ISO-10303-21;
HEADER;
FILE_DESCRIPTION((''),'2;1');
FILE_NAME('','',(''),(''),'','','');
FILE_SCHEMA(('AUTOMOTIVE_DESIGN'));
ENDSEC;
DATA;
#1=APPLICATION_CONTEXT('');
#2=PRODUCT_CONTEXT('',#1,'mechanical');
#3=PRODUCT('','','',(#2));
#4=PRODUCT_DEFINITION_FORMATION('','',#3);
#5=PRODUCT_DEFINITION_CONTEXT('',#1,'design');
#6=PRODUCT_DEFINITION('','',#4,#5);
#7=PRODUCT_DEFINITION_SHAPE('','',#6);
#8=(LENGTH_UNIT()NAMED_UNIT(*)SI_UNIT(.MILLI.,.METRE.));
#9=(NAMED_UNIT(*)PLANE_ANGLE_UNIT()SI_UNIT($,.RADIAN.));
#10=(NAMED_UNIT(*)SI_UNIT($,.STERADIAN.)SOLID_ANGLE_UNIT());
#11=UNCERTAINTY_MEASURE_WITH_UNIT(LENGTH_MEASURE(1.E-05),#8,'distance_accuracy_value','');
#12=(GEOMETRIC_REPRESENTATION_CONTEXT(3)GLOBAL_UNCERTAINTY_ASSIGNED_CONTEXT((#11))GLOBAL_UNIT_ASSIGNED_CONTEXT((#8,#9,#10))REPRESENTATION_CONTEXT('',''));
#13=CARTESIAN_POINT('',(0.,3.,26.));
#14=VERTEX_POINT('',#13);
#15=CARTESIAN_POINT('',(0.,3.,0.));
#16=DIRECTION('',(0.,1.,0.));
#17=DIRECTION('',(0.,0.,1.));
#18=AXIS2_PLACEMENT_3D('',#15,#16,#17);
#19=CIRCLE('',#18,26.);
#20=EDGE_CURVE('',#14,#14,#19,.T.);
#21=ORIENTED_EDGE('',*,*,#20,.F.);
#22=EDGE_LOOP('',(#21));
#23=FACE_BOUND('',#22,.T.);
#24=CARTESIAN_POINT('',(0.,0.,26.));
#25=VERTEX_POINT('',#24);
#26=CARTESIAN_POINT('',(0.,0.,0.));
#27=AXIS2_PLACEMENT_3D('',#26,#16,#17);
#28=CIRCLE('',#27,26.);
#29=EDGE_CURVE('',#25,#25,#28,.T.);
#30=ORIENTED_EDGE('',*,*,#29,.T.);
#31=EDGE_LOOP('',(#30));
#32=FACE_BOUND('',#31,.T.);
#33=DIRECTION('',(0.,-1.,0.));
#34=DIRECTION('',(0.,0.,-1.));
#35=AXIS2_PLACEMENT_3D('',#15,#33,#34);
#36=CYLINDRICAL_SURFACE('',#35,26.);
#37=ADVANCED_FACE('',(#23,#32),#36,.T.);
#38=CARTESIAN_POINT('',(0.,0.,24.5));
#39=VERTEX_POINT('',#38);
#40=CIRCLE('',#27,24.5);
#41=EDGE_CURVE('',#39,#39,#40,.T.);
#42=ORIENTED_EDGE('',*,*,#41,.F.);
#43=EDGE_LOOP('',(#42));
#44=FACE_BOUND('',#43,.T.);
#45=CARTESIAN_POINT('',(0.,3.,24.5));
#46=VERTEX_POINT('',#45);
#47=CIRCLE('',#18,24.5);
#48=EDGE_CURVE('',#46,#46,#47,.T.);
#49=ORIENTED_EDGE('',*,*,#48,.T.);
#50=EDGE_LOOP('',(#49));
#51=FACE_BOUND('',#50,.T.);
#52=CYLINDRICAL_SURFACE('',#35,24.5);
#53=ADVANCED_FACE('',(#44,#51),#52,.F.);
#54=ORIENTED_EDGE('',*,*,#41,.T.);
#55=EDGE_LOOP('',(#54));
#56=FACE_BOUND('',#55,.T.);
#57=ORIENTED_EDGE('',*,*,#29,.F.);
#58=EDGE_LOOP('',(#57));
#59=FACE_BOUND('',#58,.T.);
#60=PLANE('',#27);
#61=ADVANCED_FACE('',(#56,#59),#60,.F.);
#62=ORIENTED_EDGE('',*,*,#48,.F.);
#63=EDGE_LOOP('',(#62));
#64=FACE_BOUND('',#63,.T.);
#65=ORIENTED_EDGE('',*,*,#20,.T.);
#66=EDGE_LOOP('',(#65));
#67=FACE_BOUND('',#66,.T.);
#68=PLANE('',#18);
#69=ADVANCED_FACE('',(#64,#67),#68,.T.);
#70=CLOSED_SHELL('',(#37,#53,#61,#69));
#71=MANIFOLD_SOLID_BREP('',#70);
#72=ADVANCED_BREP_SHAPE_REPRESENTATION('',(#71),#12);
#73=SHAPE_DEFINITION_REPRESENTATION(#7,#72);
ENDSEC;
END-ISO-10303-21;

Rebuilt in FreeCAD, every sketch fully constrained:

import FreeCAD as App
import Part
import Sketcher
from FreeCAD import Vector
Q = App.Units.Quantity

doc = App.newDocument("Part")
params = doc.addObject("Spreadsheet::Sheet", "Params")
for row, (alias, value) in enumerate([
    ("sketch1_diameter", "52 mm"),
    ("sketch1_diameter2", "49 mm"),
    ("pad1_length", "3 mm"),
], start=1):
    params.set(f"A{row}", alias)
    params.set(f"B{row}", "=" + value)
    params.setAlias(f"B{row}", alias)

body = doc.addObject("PartDesign::Body", "Body")

# Sketch on XZ plane
sketch1 = doc.addObject("Sketcher::SketchObject", "Sketch")
body.addObject(sketch1)
sketch1.AttachmentSupport = (doc.XZ_Plane, [""])
sketch1.MapMode = "FlatFace"
sketch1.addGeometry(Part.Circle(Vector(0, 0, 0), Vector(0, 0, 1), 26), False)
sketch1.addGeometry(Part.Circle(Vector(0, 0, 0), Vector(0, 0, 1), 24), False)
sketch1.addConstraint(Sketcher.Constraint("Coincident", 0, 3, -1, 1))
sketch1.addConstraint(Sketcher.Constraint("Coincident", 1, 3, -1, 1))
sketch1.addConstraint(Sketcher.Constraint("Diameter", 0, Q("52 mm")))
sketch1.addConstraint(Sketcher.Constraint("Diameter", 1, Q("49 mm")))
sketch1.setExpression("Constraints[2]", "Params.sketch1_diameter")
sketch1.setExpression("Constraints[3]", "Params.sketch1_diameter2")
pad1 = doc.addObject("PartDesign::Pad", "Pad")
body.addObject(pad1)
pad1.Profile = sketch1
pad1.setExpression("Length", "Params.pad1_length")
pad1.Reversed = True

doc.recompute()
